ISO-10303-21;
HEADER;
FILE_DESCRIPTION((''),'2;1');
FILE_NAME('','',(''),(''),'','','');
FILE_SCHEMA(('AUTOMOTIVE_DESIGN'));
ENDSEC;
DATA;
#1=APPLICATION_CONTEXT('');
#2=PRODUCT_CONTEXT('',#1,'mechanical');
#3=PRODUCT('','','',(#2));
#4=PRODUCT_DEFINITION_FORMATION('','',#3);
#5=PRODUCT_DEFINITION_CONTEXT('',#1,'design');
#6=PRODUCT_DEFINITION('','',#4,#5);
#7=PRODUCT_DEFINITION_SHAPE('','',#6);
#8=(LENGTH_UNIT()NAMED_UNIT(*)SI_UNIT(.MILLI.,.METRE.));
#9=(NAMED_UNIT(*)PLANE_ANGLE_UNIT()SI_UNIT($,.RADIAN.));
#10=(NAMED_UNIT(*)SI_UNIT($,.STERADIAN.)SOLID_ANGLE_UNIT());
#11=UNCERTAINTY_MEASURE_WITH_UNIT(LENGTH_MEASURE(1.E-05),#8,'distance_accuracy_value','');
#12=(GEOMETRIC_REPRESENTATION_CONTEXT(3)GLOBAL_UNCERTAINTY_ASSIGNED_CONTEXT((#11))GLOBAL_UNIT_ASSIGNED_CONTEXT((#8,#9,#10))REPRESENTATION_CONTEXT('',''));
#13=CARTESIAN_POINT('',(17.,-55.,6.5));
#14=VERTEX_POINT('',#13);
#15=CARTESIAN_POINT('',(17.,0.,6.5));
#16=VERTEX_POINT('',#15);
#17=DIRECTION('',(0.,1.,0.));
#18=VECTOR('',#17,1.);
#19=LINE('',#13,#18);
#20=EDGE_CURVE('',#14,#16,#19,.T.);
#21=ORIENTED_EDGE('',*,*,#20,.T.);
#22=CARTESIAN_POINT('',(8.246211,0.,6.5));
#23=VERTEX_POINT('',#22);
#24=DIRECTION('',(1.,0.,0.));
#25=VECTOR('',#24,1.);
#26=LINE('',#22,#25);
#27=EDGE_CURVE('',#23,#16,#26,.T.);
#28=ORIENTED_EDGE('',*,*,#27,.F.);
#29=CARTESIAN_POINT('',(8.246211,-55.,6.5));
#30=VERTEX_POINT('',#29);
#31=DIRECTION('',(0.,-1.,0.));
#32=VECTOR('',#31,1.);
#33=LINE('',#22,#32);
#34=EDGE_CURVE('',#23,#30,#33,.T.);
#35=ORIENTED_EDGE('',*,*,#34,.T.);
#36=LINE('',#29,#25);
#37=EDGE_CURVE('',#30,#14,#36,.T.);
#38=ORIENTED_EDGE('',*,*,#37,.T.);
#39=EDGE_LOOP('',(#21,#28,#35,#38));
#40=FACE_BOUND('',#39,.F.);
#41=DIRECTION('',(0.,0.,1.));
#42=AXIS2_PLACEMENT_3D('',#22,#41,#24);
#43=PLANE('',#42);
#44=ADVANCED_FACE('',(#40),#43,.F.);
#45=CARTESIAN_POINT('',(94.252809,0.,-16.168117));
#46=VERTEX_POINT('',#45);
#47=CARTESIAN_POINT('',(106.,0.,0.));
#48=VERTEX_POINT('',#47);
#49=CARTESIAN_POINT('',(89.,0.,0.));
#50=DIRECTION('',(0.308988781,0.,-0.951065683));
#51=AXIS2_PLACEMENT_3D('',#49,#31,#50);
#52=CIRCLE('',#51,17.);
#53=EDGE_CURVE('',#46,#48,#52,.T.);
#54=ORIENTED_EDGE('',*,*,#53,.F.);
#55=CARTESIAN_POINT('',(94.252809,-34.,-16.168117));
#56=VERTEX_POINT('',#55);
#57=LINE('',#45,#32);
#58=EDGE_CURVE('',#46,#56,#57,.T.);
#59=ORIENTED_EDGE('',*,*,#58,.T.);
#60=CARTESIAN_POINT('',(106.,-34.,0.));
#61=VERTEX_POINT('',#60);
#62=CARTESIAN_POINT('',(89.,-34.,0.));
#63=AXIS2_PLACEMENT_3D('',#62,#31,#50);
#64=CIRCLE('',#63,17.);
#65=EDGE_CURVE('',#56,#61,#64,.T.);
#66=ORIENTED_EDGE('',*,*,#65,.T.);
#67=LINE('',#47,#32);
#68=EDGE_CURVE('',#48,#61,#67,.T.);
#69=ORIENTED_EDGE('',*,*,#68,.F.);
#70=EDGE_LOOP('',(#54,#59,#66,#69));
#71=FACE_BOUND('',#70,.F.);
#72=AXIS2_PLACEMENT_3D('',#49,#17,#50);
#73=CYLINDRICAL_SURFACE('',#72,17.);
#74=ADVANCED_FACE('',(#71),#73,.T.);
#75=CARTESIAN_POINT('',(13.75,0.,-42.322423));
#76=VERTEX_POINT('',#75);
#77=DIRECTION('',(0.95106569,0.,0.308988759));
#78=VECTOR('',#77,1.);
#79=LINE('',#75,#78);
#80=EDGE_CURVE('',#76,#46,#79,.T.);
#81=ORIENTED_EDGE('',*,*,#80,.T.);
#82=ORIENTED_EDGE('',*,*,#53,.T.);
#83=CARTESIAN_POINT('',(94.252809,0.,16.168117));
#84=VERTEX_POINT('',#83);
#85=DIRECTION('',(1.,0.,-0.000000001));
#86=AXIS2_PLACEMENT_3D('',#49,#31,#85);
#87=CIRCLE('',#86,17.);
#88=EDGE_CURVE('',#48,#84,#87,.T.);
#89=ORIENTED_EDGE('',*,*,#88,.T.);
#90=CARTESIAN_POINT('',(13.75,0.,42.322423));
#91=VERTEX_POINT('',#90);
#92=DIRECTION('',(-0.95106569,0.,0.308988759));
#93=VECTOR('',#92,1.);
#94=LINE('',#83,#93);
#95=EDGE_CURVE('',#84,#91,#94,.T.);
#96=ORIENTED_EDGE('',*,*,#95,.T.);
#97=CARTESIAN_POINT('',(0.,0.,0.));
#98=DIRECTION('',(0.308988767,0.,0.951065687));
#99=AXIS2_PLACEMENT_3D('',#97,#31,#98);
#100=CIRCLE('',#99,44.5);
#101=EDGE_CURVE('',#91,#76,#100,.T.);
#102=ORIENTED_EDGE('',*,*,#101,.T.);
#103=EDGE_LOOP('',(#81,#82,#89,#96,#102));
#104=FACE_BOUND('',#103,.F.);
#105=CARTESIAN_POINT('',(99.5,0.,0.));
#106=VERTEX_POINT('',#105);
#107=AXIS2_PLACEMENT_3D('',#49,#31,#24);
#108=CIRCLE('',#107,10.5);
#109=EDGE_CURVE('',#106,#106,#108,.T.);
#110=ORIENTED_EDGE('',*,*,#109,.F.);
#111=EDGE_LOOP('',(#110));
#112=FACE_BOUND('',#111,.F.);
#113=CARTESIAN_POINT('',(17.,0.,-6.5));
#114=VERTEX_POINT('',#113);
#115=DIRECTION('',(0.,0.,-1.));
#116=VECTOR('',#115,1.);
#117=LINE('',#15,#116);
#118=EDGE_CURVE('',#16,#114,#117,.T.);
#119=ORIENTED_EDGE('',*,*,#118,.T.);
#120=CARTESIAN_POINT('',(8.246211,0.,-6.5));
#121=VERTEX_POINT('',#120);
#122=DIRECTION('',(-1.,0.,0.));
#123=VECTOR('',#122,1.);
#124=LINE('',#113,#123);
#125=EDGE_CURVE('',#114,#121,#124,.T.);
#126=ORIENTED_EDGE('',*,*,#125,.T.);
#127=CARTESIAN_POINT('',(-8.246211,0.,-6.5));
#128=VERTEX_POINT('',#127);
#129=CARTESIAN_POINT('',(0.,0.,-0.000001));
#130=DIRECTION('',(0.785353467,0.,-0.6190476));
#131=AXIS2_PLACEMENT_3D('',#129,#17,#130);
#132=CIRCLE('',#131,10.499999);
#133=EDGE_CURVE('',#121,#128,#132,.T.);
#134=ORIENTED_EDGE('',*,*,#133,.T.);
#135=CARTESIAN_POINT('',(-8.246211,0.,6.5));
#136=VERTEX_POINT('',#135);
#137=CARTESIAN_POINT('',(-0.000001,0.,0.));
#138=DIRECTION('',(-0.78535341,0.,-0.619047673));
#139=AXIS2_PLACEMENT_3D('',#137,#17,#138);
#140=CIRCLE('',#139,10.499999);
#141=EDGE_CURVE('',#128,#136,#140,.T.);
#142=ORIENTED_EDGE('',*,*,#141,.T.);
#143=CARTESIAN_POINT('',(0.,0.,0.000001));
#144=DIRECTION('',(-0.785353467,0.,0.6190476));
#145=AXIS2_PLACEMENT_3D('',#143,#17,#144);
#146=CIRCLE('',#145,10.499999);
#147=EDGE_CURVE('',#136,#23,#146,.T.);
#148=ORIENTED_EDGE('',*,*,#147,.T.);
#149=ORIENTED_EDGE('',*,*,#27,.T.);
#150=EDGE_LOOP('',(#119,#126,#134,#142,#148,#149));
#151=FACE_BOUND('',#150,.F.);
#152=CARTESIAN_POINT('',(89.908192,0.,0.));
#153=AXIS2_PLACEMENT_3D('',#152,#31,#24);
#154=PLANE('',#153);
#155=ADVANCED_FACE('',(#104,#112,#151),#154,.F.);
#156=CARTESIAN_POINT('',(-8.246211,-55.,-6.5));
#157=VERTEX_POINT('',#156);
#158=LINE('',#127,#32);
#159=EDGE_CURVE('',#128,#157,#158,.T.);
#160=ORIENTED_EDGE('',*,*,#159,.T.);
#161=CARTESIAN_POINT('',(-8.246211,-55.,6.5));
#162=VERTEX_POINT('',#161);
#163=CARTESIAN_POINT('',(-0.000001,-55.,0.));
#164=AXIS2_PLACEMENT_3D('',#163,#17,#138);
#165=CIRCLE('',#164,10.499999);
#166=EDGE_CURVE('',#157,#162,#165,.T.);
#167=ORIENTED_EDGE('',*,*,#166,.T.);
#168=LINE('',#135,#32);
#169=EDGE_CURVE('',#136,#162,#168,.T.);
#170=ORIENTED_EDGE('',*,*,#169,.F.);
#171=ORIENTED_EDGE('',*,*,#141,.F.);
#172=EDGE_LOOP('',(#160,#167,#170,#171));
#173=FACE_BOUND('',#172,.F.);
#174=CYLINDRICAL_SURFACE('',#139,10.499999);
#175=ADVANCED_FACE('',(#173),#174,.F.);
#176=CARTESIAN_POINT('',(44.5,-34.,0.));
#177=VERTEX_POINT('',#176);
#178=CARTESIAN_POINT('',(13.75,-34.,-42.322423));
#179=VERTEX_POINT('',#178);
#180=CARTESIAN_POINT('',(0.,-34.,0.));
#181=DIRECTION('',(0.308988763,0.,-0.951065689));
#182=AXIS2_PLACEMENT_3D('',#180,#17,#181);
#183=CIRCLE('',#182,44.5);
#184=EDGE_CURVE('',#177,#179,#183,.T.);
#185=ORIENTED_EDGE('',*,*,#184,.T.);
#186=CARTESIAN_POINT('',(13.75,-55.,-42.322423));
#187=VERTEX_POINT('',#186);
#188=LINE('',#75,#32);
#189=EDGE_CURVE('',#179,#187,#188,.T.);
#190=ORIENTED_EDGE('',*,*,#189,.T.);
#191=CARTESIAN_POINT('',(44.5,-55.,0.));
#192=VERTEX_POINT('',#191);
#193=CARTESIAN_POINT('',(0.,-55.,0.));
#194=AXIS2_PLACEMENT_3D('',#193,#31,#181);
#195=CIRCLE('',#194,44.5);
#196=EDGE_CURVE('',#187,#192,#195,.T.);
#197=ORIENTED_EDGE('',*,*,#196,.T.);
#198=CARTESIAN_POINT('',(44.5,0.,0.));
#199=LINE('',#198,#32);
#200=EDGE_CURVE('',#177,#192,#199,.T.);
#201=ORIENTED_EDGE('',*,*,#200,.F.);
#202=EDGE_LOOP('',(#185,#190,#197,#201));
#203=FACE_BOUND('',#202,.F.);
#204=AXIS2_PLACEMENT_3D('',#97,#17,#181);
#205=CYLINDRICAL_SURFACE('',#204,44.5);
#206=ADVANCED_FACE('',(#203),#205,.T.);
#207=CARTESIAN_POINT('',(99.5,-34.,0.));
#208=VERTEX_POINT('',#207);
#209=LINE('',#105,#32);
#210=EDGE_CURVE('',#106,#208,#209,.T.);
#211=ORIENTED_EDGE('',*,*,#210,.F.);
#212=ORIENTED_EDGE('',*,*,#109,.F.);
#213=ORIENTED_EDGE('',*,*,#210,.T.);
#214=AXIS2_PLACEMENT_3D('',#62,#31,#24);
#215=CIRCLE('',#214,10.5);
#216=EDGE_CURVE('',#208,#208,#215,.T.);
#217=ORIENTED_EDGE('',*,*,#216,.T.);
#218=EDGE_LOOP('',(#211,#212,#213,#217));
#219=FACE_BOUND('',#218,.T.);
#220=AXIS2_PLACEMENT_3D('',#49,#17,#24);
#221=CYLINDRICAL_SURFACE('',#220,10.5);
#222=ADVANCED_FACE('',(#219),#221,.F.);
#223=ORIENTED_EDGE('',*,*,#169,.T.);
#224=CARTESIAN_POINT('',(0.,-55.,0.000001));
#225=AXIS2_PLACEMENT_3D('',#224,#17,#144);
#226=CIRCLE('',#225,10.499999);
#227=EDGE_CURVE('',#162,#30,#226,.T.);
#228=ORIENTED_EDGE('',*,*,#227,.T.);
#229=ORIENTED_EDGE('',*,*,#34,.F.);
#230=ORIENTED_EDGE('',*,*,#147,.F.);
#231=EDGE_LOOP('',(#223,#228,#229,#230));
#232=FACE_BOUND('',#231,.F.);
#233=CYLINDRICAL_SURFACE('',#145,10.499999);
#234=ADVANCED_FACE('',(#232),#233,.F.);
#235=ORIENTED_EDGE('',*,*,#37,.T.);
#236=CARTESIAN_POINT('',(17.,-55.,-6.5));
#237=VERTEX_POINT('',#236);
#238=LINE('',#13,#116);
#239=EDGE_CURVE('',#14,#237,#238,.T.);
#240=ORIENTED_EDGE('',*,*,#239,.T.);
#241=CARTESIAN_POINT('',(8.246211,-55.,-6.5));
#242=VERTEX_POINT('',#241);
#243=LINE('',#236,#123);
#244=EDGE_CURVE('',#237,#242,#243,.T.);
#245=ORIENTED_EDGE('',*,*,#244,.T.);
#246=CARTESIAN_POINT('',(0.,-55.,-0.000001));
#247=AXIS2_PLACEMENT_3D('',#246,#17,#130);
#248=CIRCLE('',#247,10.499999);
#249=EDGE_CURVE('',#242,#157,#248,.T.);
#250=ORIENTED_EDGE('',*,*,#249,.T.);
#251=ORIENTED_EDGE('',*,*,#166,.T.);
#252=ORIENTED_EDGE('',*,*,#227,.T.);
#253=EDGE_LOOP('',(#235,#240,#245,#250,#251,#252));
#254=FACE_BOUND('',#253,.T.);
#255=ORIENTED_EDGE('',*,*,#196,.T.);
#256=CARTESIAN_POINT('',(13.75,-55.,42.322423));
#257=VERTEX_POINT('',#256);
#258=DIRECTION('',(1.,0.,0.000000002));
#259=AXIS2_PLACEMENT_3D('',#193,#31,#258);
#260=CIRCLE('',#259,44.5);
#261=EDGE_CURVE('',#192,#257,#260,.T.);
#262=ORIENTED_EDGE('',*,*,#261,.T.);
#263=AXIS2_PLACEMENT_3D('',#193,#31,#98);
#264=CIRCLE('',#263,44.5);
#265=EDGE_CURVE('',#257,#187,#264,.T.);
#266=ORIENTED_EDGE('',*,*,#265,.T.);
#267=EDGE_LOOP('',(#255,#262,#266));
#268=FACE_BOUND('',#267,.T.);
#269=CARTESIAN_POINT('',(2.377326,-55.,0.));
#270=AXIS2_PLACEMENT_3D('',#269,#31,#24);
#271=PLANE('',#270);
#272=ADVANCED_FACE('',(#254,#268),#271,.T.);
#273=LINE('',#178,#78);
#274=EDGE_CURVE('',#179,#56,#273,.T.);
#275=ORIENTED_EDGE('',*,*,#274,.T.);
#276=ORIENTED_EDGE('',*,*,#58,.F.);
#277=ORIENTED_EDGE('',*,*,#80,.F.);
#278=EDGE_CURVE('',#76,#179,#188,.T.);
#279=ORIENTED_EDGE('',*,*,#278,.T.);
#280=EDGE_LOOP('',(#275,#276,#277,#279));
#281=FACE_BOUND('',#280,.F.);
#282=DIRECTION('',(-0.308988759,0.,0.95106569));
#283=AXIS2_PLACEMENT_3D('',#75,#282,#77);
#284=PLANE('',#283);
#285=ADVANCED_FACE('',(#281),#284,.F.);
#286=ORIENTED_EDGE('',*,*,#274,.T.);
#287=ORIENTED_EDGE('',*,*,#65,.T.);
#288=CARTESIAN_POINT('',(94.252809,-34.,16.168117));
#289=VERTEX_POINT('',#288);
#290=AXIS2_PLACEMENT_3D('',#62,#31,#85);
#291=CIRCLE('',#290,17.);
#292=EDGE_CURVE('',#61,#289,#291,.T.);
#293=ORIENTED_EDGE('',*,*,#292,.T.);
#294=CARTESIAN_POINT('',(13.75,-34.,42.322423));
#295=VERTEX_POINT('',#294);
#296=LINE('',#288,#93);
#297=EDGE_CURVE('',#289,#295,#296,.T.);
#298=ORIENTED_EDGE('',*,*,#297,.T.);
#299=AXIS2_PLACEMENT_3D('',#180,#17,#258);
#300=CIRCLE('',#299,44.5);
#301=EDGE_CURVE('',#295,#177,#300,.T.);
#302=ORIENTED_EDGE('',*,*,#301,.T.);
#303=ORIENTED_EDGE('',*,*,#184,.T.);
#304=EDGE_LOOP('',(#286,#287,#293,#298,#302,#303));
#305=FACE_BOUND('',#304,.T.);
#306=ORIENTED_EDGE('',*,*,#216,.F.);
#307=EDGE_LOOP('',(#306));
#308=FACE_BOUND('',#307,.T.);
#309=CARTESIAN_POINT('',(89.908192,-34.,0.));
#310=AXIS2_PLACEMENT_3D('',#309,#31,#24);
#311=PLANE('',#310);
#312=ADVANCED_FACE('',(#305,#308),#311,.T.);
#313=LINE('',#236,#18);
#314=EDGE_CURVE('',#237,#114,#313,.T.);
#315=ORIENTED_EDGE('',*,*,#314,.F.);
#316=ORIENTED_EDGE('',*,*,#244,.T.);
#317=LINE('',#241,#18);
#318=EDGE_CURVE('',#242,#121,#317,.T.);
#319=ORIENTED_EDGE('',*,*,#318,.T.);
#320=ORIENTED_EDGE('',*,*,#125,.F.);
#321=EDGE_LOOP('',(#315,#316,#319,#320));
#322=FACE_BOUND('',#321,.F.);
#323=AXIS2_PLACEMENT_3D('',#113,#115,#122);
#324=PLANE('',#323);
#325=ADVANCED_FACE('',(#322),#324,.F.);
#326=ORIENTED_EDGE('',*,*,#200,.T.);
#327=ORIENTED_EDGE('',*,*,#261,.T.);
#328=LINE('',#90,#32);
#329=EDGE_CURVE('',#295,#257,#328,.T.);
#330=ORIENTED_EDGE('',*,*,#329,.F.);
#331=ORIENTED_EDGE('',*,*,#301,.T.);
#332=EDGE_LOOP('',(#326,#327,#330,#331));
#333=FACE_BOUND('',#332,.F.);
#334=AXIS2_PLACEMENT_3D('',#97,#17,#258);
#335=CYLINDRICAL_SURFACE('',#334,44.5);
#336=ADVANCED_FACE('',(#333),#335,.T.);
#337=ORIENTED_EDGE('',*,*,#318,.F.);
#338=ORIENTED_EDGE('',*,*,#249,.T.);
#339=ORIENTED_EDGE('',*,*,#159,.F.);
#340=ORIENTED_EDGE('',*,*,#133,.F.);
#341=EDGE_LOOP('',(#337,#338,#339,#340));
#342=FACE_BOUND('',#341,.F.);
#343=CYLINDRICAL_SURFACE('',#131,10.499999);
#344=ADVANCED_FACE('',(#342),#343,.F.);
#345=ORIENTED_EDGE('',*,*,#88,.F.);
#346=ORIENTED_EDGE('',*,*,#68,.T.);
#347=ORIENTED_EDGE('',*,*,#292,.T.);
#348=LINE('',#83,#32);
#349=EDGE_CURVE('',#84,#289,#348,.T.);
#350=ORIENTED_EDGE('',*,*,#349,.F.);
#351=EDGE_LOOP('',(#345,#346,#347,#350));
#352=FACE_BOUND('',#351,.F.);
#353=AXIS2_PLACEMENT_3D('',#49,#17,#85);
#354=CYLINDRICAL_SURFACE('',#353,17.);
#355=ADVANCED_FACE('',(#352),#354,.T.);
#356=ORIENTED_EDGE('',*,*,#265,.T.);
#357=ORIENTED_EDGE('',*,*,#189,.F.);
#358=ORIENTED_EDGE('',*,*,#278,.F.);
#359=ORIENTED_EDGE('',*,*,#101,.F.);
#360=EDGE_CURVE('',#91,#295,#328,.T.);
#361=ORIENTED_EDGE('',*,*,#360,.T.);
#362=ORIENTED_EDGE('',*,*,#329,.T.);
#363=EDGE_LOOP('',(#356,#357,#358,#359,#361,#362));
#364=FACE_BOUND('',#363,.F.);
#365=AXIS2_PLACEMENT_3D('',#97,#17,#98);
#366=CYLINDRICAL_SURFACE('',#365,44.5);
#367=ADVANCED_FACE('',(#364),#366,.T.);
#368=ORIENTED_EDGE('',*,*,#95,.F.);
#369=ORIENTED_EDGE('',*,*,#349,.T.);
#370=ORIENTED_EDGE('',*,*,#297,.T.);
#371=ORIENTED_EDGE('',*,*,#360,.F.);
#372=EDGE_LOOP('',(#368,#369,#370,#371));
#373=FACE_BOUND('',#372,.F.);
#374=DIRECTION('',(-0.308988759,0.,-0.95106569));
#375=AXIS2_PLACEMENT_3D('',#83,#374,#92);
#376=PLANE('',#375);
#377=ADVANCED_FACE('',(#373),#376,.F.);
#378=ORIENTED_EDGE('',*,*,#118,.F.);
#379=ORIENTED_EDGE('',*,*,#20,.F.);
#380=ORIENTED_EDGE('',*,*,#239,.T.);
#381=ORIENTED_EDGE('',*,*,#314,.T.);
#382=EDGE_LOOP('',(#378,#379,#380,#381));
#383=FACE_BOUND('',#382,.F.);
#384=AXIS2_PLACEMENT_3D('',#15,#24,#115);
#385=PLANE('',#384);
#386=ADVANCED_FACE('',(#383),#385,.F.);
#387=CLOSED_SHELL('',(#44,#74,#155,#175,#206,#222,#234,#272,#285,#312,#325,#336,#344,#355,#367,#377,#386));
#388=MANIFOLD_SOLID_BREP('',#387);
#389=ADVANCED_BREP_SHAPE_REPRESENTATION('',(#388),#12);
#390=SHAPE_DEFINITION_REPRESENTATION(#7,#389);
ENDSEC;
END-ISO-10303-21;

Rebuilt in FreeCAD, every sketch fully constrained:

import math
import FreeCAD as App
import Part
import Sketcher
from FreeCAD import Vector
Q = App.Units.Quantity

doc = App.newDocument("Part")
body = doc.addObject("PartDesign::Body", "Body")

sketch1 = doc.addObject("Sketcher::SketchObject", "Sketch")
body.addObject(sketch1)
sketch1.AttachmentSupport = (doc.XZ_Plane, [""])
sketch1.MapMode = "FlatFace"
sketch1.addGeometry([
    Part.ArcOfCircle(Part.Circle(Vector(89, 0, 0), Vector(0, 0, 1), 17), math.radians(0), math.radians(72)),
    Part.LineSegment(Vector(94, 16, 0), Vector(14, 42, 0)),
    Part.ArcOfCircle(Part.Circle(Vector(0, 0, 0), Vector(0, 0, 1), 44), math.radians(72), math.radians(288)),
    Part.LineSegment(Vector(14, -42, 0), Vector(94, -16, 0)),
    Part.ArcOfCircle(Part.Circle(Vector(89, 0, 0), Vector(0, 0, 1), 17), math.radians(-72), math.radians(0)),
    Part.ArcOfCircle(Part.Circle(Vector(0, 0, 0), Vector(0, 0, 1), 10), math.radians(-142), math.radians(-38)),
    Part.ArcOfCircle(Part.Circle(Vector(0, 0, 0), Vector(0, 0, 1), 10), math.radians(142), math.radians(218)),
    Part.ArcOfCircle(Part.Circle(Vector(0, 0, 0), Vector(0, 0, 1), 10), math.radians(38), math.radians(142)),
    Part.LineSegment(Vector(8, 6, 0), Vector(17, 6, 0)),
    Part.LineSegment(Vector(17, 6, 0), Vector(17, -6, 0)),
    Part.LineSegment(Vector(17, -6, 0), Vector(8, -6, 0)),
    Part.Circle(Vector(89, 0, 0), Vector(0, 0, 1), 10),
], False)
sketch1.addConstraint([
    Sketcher.Constraint("Tangent", 0, 2, 1, 1),
    Sketcher.Constraint("Tangent", 1, 2, 2, 1),
    Sketcher.Constraint("Tangent", 2, 2, 3, 1),
    Sketcher.Constraint("Tangent", 3, 2, 4, 1),
    Sketcher.Constraint("Tangent", 4, 2, 0, 1),
    Sketcher.Constraint("Tangent", 5, 1, 6, 2),
    Sketcher.Constraint("Tangent", 6, 1, 7, 2),
    Sketcher.Constraint("Coincident", 7, 1, 8, 1),
    Sketcher.Constraint("Coincident", 8, 2, 9, 1),
    Sketcher.Constraint("Coincident", 9, 2, 10, 1),
    Sketcher.Constraint("Coincident", 10, 2, 5, 2),
    Sketcher.Constraint("Horizontal", 8),
    Sketcher.Constraint("Vertical", 9),
    Sketcher.Constraint("Horizontal", 10),
    Sketcher.Constraint("Coincident", 2, 3, -1, 1),
    Sketcher.Constraint("Coincident", 5, 3, -1, 1),
    Sketcher.Constraint("Coincident", 7, 3, -1, 1),
    Sketcher.Constraint("Coincident", 11, 3, 0, 3),
    Sketcher.Constraint("Equal", 0, 4),
    Sketcher.Constraint("Equal", 7, 11),
    Sketcher.Constraint("PointOnObject", 0, 3, -1),
    Sketcher.Constraint("PointOnObject", 4, 2, -1),
    Sketcher.Constraint("Horizontal", 6, 1, 7, 1),
    Sketcher.Constraint("Horizontal", 5, 1, 9, 2),
    Sketcher.Constraint("Vertical", 5, 1, 6, 1),
    Sketcher.Constraint("Diameter", 11, Q("21 mm")),
    Sketcher.Constraint("Radius", 0, Q("17 mm")),
    Sketcher.Constraint("Radius", 2, Q("44.5 mm")),
    Sketcher.Constraint("DistanceY", 9, 2, 9, 1, Q("13 mm")),
    Sketcher.Constraint("DistanceX", -1, 1, 0, 3, Q("89 mm")),
    Sketcher.Constraint("DistanceX", -1, 1, 8, 2, Q("17 mm")),
])
pad1 = doc.addObject("PartDesign::Pad", "Pad")
body.addObject(pad1)
pad1.Profile = sketch1
pad1.Length = 34

sketch2 = doc.addObject("Sketcher::SketchObject", "Sketch001")
body.addObject(sketch2)
sketch2.AttachmentSupport = (doc.XZ_Plane, [""])
sketch2.MapMode = "FlatFace"
sketch2.addGeometry([
    Part.ArcOfCircle(Part.Circle(Vector(0, 0, 0), Vector(0, 0, 1), 44), math.radians(-72), math.radians(0)),
    Part.ArcOfCircle(Part.Circle(Vector(0, 0, 0), Vector(0, 0, 1), 44), math.radians(0), math.radians(72)),
    Part.ArcOfCircle(Part.Circle(Vector(0, 0, 0), Vector(0, 0, 1), 44), math.radians(72), math.radians(288)),
    Part.ArcOfCircle(Part.Circle(Vector(0, 0, 0), Vector(0, 0, 1), 10), math.radians(-142), math.radians(-38)),
    Part.ArcOfCircle(Part.Circle(Vector(0, 0, 0), Vector(0, 0, 1), 10), math.radians(142), math.radians(218)),
    Part.ArcOfCircle(Part.Circle(Vector(0, 0, 0), Vector(0, 0, 1), 10), math.radians(38), math.radians(142)),
    Part.LineSegment(Vector(8, 6, 0), Vector(17, 6, 0)),
    Part.LineSegment(Vector(17, 6, 0), Vector(17, -6, 0)),
    Part.LineSegment(Vector(17, -6, 0), Vector(8, -6, 0)),
], False)
sketch2.addConstraint([
    Sketcher.Constraint("Tangent", 0, 2, 1, 1),
    Sketcher.Constraint("Tangent", 1, 2, 2, 1),
    Sketcher.Constraint("Tangent", 2, 2, 0, 1),
    Sketcher.Constraint("Tangent", 3, 1, 4, 2),
    Sketcher.Constraint("Tangent", 4, 1, 5, 2),
    Sketcher.Constraint("Coincident", 5, 1, 6, 1),
    Sketcher.Constraint("Coincident", 6, 2, 7, 1),
    Sketcher.Constraint("Coincident", 7, 2, 8, 1),
    Sketcher.Constraint("Coincident", 8, 2, 3, 2),
    Sketcher.Constraint("Horizontal", 6),
    Sketcher.Constraint("Vertical", 7),
    Sketcher.Constraint("Horizontal", 8),
    Sketcher.Constraint("Coincident", 0, 3, -1, 1),
    Sketcher.Constraint("Coincident", 3, 3, -1, 1),
    Sketcher.Constraint("Coincident", 5, 3, -1, 1),
    Sketcher.Constraint("PointOnObject", 0, 2, -1),
    Sketcher.Constraint("Horizontal", 4, 1, 5, 1),
    Sketcher.Constraint("Horizontal", 3, 1, 7, 2),
    Sketcher.Constraint("Vertical", 1, 2, 2, 2),
    Sketcher.Constraint("Vertical", 3, 1, 4, 1),
    Sketcher.Constraint("Radius", 0, Q("44.5 mm")),
    Sketcher.Constraint("Radius", 3, Q("10.499999 mm")),
    Sketcher.Constraint("DistanceY", 7, 2, 7, 1, Q("13 mm")),
    Sketcher.Constraint("DistanceX", -1, 1, 6, 2, Q("17 mm")),
    Sketcher.Constraint("DistanceX", -1, 1, 1, 2, Q("13.75 mm")),
])
pad2 = doc.addObject("PartDesign::Pad", "Pad001")
body.addObject(pad2)
pad2.Profile = sketch2
pad2.Length = 55

doc.recompute()
